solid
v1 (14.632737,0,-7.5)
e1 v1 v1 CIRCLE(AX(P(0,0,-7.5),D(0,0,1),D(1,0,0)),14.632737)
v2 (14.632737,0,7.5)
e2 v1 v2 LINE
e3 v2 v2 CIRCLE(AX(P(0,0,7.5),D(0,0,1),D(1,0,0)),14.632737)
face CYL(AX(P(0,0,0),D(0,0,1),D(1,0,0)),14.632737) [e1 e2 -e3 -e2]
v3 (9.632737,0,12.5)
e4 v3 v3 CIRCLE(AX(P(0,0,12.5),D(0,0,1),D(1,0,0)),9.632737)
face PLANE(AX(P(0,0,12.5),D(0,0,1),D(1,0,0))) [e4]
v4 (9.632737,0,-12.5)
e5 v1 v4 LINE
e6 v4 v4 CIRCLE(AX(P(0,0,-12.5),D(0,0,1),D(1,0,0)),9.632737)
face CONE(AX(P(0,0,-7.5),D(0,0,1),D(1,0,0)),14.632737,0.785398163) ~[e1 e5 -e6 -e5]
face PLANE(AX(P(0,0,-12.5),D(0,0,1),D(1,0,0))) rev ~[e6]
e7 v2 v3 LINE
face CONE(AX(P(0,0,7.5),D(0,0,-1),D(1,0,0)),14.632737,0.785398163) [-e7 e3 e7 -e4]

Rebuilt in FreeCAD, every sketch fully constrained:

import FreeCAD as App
import Part
import Sketcher
Q = App.Units.Quantity

doc = App.newDocument("Part")
body = doc.addObject("PartDesign::Body", "Body")

# Sketch on XY plane
sketch1 = body.newObject("Sketcher::SketchObject", "Sketch")
sketch1.AttachmentSupport = (doc.getObject("XY_Plane"), [""])
sketch1.MapMode = "FlatFace"
sketch1.addGeometry(Part.Circle(App.Vector(0, 0, 0), App.Vector(0, 0, 1), 14.632737), False)
sketch1.addConstraint(Sketcher.Constraint("Coincident", 0, 3, -1, 1))
sketch1.addConstraint(Sketcher.Constraint("Diameter", 0, Q("29.265474 mm")))
pad1 = body.newObject("PartDesign::Pad", "Pad")
pad1.Profile = sketch1
pad1.Length = 25
pad1.Midplane = True
doc.recompute()

chamfer = body.newObject("PartDesign::Chamfer", "Chamfer")
chamfer.Base = (pad1, ["Edge1"])
chamfer.UseAllEdges = True
chamfer.Size = 5

doc.recompute()
